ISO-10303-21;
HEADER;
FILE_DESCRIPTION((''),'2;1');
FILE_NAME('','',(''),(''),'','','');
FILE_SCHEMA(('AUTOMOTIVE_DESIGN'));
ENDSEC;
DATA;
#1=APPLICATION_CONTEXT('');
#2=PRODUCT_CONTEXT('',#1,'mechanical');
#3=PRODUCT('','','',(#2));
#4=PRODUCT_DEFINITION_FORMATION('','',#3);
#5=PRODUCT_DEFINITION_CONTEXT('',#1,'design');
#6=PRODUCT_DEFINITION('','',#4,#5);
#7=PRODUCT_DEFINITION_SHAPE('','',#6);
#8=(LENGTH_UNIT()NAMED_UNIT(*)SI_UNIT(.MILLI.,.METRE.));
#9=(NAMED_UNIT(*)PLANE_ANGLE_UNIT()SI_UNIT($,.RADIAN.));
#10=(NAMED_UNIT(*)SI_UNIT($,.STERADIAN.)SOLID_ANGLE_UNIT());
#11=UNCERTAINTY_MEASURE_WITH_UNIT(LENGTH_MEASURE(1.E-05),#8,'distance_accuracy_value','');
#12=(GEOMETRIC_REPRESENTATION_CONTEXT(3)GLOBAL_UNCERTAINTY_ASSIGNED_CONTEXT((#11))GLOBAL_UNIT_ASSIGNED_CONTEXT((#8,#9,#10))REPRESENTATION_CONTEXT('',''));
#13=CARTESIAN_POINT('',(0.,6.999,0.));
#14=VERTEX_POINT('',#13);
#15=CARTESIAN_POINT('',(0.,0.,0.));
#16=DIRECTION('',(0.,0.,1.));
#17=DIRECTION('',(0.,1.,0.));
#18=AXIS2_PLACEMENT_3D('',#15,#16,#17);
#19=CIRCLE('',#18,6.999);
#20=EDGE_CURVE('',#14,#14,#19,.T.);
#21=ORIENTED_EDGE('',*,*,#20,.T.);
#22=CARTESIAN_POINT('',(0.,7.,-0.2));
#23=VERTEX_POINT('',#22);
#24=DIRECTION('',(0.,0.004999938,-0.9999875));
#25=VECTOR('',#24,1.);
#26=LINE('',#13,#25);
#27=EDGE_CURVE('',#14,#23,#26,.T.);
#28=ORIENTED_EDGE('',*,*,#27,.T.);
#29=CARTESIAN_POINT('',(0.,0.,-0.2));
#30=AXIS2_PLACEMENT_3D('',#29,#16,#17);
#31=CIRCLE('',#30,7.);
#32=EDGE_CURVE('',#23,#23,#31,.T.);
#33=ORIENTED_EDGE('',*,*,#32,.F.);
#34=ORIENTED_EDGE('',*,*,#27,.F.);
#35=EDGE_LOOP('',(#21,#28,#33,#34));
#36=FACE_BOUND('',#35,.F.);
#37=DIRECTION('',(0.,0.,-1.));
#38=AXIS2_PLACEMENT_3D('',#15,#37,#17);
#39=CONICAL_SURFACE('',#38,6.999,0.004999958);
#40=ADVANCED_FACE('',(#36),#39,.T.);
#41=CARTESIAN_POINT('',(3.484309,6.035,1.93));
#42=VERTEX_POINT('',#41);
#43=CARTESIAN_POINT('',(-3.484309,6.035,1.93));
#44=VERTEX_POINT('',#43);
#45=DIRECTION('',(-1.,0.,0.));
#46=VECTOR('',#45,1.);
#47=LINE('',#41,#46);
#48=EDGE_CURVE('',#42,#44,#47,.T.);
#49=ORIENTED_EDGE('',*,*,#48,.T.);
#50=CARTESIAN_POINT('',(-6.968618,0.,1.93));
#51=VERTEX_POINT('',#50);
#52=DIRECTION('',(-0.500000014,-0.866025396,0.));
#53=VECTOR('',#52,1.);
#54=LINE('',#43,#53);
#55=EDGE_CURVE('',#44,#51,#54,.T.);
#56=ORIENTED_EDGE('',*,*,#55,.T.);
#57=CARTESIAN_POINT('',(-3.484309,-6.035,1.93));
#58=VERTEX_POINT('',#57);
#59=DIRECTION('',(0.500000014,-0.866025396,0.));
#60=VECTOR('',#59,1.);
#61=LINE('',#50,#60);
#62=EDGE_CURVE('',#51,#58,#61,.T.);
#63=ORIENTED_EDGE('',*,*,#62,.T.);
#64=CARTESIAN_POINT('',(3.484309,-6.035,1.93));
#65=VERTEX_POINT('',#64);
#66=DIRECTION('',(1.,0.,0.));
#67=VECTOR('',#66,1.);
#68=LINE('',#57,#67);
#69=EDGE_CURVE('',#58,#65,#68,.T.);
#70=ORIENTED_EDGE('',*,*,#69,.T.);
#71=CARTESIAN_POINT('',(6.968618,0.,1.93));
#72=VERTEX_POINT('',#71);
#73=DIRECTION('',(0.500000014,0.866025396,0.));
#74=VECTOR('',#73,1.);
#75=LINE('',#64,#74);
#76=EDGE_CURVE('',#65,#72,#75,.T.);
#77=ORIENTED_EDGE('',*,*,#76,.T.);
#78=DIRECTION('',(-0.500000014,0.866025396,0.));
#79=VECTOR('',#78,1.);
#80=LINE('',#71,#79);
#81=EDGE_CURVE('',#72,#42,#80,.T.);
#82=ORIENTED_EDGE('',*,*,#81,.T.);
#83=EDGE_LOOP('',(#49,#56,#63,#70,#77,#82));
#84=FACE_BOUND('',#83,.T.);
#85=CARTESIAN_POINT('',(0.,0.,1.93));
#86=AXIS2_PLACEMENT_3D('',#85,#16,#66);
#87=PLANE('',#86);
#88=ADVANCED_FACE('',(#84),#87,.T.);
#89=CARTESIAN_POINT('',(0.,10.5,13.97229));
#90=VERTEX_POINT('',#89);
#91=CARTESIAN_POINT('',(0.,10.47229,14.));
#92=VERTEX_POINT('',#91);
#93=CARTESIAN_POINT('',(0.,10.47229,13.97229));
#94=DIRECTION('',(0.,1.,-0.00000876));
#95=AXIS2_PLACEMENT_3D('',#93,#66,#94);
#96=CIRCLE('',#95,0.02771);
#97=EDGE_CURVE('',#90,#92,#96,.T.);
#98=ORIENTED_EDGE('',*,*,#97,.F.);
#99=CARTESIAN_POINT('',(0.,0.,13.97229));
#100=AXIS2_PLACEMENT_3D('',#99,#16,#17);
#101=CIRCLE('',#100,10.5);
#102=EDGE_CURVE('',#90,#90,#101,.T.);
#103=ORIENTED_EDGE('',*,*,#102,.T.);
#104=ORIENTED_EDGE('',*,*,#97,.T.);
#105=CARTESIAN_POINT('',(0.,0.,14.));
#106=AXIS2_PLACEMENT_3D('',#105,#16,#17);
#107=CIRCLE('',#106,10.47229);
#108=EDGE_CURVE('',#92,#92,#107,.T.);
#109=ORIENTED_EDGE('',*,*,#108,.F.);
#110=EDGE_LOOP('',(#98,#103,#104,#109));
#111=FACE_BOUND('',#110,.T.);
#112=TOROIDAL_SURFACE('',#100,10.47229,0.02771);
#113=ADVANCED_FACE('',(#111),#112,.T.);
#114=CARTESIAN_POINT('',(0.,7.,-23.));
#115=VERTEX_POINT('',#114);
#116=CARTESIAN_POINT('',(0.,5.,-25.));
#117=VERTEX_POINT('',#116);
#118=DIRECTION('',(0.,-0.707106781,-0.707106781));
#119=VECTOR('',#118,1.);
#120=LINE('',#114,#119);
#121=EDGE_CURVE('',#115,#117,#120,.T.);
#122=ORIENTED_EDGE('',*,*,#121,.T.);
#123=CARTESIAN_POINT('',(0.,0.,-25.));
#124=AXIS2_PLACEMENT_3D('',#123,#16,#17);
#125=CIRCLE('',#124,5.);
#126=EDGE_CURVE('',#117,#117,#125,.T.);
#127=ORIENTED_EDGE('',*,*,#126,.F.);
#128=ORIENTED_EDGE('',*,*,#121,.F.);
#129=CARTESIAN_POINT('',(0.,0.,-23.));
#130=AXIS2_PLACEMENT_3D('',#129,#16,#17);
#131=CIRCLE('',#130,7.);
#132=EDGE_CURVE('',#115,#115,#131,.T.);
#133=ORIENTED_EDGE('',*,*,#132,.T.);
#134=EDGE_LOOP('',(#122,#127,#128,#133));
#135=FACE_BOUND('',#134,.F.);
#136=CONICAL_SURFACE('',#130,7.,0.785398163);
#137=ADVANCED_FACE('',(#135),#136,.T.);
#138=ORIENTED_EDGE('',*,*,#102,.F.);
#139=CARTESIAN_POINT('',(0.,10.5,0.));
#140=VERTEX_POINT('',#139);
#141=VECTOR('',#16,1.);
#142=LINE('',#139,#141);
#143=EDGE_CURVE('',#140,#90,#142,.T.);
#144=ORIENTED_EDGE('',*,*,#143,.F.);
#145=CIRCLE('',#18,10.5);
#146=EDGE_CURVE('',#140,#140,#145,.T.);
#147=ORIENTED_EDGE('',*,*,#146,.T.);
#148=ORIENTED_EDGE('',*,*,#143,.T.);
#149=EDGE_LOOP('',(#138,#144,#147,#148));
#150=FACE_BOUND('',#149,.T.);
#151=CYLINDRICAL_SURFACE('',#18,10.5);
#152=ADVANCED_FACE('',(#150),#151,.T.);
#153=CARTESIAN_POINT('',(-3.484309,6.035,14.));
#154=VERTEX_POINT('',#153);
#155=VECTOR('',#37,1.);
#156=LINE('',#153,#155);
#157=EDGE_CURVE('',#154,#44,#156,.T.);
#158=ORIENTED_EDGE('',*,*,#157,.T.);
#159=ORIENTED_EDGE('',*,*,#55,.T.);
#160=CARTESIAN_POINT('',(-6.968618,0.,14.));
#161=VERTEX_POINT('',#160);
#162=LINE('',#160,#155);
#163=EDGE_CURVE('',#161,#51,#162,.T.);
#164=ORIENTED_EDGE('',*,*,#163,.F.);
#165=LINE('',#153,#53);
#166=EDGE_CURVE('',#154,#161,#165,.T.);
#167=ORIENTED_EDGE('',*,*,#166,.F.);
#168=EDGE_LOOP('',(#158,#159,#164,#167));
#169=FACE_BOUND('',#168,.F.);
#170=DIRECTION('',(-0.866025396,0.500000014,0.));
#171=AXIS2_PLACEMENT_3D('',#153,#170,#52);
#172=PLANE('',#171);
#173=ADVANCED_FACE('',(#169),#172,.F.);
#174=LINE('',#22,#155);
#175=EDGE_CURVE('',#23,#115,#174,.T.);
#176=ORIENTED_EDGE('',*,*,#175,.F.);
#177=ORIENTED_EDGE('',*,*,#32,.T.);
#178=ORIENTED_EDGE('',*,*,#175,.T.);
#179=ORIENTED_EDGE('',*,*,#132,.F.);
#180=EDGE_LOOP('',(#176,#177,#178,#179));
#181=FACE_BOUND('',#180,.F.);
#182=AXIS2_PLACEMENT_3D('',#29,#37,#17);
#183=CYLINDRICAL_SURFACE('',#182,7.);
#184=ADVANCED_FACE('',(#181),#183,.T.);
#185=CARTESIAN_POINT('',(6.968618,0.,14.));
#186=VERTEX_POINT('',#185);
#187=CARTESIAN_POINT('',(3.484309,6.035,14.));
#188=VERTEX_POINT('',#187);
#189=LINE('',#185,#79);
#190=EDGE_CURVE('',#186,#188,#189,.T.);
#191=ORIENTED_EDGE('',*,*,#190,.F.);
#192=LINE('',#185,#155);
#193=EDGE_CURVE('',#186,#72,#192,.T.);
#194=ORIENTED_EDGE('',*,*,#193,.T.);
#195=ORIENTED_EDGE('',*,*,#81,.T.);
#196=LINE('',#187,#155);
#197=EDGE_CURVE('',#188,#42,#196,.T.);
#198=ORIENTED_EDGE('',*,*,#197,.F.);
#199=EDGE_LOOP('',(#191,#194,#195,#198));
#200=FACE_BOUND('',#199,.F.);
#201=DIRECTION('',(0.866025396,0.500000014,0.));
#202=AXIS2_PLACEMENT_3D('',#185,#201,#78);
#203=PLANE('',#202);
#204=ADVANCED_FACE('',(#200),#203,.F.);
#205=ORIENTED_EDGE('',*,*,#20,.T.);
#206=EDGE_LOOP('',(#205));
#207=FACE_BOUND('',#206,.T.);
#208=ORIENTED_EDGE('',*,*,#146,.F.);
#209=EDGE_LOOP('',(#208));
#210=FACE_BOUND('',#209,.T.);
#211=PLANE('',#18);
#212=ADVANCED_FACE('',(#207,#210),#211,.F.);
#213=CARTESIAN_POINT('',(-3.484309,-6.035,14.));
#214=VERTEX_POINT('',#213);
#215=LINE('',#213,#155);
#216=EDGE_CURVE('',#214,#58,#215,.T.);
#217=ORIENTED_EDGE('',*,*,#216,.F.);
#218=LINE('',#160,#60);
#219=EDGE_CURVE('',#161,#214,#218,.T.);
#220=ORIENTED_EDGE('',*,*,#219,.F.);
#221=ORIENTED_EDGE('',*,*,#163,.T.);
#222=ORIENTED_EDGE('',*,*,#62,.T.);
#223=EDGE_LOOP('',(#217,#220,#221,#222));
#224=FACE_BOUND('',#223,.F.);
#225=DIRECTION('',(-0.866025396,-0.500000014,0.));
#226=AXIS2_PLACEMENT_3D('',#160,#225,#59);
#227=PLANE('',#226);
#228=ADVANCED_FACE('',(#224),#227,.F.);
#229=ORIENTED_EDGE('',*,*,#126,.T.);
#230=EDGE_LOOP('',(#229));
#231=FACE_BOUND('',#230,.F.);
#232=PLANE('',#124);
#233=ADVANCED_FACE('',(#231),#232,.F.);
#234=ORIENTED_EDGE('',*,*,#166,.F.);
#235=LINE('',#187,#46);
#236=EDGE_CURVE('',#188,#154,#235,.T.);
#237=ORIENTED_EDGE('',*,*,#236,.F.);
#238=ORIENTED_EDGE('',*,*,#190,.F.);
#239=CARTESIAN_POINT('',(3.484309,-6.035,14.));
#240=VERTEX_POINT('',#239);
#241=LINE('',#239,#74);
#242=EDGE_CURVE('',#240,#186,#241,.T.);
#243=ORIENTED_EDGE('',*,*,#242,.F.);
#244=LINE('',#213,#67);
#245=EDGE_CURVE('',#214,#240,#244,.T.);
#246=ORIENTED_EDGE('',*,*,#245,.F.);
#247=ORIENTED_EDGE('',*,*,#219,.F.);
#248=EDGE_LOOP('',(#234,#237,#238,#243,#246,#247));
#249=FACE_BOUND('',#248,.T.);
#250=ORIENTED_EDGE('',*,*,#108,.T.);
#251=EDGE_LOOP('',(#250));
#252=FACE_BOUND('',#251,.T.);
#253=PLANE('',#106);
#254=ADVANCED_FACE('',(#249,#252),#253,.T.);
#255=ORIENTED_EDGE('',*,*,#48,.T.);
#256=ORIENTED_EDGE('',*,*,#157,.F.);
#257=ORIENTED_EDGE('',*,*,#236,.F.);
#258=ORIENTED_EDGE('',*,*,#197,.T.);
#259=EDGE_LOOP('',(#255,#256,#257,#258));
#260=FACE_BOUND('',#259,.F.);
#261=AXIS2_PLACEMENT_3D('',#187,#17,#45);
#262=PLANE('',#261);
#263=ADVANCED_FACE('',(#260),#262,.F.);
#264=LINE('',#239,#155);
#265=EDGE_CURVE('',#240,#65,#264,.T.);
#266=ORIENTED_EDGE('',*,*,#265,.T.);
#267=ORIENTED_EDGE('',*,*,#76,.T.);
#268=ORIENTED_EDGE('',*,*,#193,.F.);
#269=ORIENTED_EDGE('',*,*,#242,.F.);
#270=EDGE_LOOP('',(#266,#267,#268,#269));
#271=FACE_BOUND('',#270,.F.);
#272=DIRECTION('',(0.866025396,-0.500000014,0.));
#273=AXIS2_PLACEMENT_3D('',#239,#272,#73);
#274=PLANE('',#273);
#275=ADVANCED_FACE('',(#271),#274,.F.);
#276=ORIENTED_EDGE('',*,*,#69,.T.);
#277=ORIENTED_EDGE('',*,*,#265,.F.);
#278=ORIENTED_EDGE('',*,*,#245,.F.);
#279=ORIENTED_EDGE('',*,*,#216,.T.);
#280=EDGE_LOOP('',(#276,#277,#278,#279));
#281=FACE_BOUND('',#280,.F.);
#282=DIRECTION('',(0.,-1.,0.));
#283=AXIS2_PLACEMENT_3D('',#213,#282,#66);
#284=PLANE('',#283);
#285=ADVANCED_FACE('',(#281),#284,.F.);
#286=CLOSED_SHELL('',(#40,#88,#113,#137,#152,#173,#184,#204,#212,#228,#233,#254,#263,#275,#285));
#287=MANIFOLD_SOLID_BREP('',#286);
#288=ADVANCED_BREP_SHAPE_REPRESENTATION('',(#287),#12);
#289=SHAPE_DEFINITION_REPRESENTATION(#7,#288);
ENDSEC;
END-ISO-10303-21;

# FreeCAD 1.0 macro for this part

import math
import FreeCAD as App
import Part
import Sketcher

V = App.Vector
Q = App.Units.Quantity

doc = App.newDocument("Part")
body = doc.addObject("PartDesign::Body", "Body")

# Sketch on YZ plane
sketch1 = body.newObject("Sketcher::SketchObject", "Sketch")
sketch1.AttachmentSupport = (doc.getObject("YZ_Plane"), [""])
sketch1.MapMode = "FlatFace"
sketch1.addGeometry(Part.LineSegment(V(6.999, 0, 0), V(10.5, 0, 0)), False)
sketch1.addGeometry(Part.LineSegment(V(10.5, 0, 0), V(10.5, 13.972, 0)), False)
sketch1.addGeometry(Part.ArcOfCircle(Part.Circle(V(10.472, 13.972, 0), V(0, 0, 1), 0.028), math.radians(0), math.radians(90)), False)
sketch1.addGeometry(Part.LineSegment(V(10.472, 14, 0), V(0, 14, 0)), False)
sketch1.addGeometry(Part.LineSegment(V(0, 14, 0), V(0, -25, 0)), False)
sketch1.addGeometry(Part.LineSegment(V(0, -25, 0), V(5, -25, 0)), False)
sketch1.addGeometry(Part.LineSegment(V(5, -25, 0), V(7, -23, 0)), False)
sketch1.addGeometry(Part.LineSegment(V(7, -23, 0), V(7, -0.2, 0)), False)
sketch1.addGeometry(Part.LineSegment(V(7, -0.2, 0), V(6.999, 0, 0)), False)
sketch1.addConstraint(Sketcher.Constraint("Coincident", 0, 2, 1, 1))
sketch1.addConstraint(Sketcher.Constraint("Coincident", 1, 2, 2, 1))
sketch1.addConstraint(Sketcher.Constraint("Coincident", 2, 2, 3, 1))
sketch1.addConstraint(Sketcher.Constraint("Coincident", 3, 2, 4, 1))
sketch1.addConstraint(Sketcher.Constraint("Coincident", 4, 2, 5, 1))
sketch1.addConstraint(Sketcher.Constraint("Coincident", 5, 2, 6, 1))
sketch1.addConstraint(Sketcher.Constraint("Coincident", 6, 2, 7, 1))
sketch1.addConstraint(Sketcher.Constraint("Coincident", 7, 2, 8, 1))
sketch1.addConstraint(Sketcher.Constraint("Coincident", 8, 2, 0, 1))
sketch1.addConstraint(Sketcher.Constraint("Horizontal", 0))
sketch1.addConstraint(Sketcher.Constraint("Vertical", 1))
sketch1.addConstraint(Sketcher.Constraint("Horizontal", 3))
sketch1.addConstraint(Sketcher.Constraint("Vertical", 4))
sketch1.addConstraint(Sketcher.Constraint("Horizontal", 5))
sketch1.addConstraint(Sketcher.Constraint("Vertical", 7))
sketch1.addConstraint(Sketcher.Constraint("PointOnObject", 0, 2, -1))
sketch1.addConstraint(Sketcher.Constraint("PointOnObject", 3, 2, -2))
sketch1.addConstraint(Sketcher.Constraint("Horizontal", 2, 3, 1, 2))
sketch1.addConstraint(Sketcher.Constraint("DistanceX", 5, 1, 5, 2, Q("5 mm")))
sketch1.addConstraint(Sketcher.Constraint("DistanceY", 4, 2, 4, 1, Q("39 mm")))
sketch1.addConstraint(Sketcher.Constraint("Angle", 6, Q("45 deg")))
sketch1.addConstraint(Sketcher.Constraint("DistanceY", 7, 1, 7, 2, Q("22.8 mm")))
sketch1.addConstraint(Sketcher.Constraint("DistanceY", -1, 1, 2, 2, Q("14 mm")))
sketch1.addConstraint(Sketcher.Constraint("DistanceX", -1, 1, 6, 2, Q("7 mm")))
sketch1.addConstraint(Sketcher.Constraint("DistanceX", -1, 1, 0, 2, Q("10.5 mm")))
sketch1.addConstraint(Sketcher.Constraint("DistanceX", 0, 1, 0, 2, Q("3.501 mm")))
sketch1.addConstraint(Sketcher.Constraint("Radius", 2, Q("0.02771 mm")))
sketch1.addConstraint(Sketcher.Constraint("DistanceX", 3, 2, 3, 1, Q("10.47229 mm")))
revolution = body.newObject("PartDesign::Revolution", "Revolution")
revolution.Profile = sketch1
revolution.ReferenceAxis = (sketch1, ["V_Axis"])
revolution.Angle = 360

# Sketch on XY plane
sketch2 = body.newObject("Sketcher::SketchObject", "Sketch001")
sketch2.AttachmentSupport = (doc.getObject("XY_Plane"), [""])
sketch2.MapMode = "FlatFace"
sketch2.AttachmentOffset = App.Placement(V(0, 0, 14), App.Rotation())
sketch2.addGeometry(Part.LineSegment(V(7, 0, 0), V(3, 6, 0)), False)
sketch2.addGeometry(Part.LineSegment(V(3, 6, 0), V(-3, 6, 0)), False)
sketch2.addGeometry(Part.LineSegment(V(-3, 6, 0), V(-7, 0, 0)), False)
sketch2.addGeometry(Part.LineSegment(V(-7, 0, 0), V(-3, -6, 0)), False)
sketch2.addGeometry(Part.LineSegment(V(-3, -6, 0), V(3, -6, 0)), False)
sketch2.addGeometry(Part.LineSegment(V(3, -6, 0), V(7, 0, 0)), False)
sketch2.addConstraint(Sketcher.Constraint("Coincident", 0, 2, 1, 1))
sketch2.addConstraint(Sketcher.Constraint("Coincident", 1, 2, 2, 1))
sketch2.addConstraint(Sketcher.Constraint("Coincident", 2, 2, 3, 1))
sketch2.addConstraint(Sketcher.Constraint("Coincident", 3, 2, 4, 1))
sketch2.addConstraint(Sketcher.Constraint("Coincident", 4, 2, 5, 1))
sketch2.addConstraint(Sketcher.Constraint("Coincident", 5, 2, 0, 1))
sketch2.addConstraint(Sketcher.Constraint("Horizontal", 1))
sketch2.addConstraint(Sketcher.Constraint("Horizontal", 4))
sketch2.addConstraint(Sketcher.Constraint("Symmetric", 0, 2, 3, 2, -1, 1))
sketch2.addConstraint(Sketcher.Constraint("Symmetric", 2, 2, 5, 2, -1, 1))
sketch2.addConstraint(Sketcher.Constraint("PointOnObject", 2, 2, -1))
sketch2.addConstraint(Sketcher.Constraint("Parallel", 2, 5))
sketch2.addConstraint(Sketcher.Constraint("Vertical", 1, 2, 3, 2))
sketch2.addConstraint(Sketcher.Constraint("Angle", 0, Q("120.000001 deg")))
sketch2.addConstraint(Sketcher.Constraint("DistanceY", 3, 2, 1, 2, Q("12.07 mm")))
sketch2.addConstraint(Sketcher.Constraint("DistanceX", 1, 2, 1, 1, Q("6.968618 mm")))
pocket1 = body.newObject("PartDesign::Pocket", "Pocket")
pocket1.Profile = sketch2
pocket1.Length = 12.07

doc.recompute()
